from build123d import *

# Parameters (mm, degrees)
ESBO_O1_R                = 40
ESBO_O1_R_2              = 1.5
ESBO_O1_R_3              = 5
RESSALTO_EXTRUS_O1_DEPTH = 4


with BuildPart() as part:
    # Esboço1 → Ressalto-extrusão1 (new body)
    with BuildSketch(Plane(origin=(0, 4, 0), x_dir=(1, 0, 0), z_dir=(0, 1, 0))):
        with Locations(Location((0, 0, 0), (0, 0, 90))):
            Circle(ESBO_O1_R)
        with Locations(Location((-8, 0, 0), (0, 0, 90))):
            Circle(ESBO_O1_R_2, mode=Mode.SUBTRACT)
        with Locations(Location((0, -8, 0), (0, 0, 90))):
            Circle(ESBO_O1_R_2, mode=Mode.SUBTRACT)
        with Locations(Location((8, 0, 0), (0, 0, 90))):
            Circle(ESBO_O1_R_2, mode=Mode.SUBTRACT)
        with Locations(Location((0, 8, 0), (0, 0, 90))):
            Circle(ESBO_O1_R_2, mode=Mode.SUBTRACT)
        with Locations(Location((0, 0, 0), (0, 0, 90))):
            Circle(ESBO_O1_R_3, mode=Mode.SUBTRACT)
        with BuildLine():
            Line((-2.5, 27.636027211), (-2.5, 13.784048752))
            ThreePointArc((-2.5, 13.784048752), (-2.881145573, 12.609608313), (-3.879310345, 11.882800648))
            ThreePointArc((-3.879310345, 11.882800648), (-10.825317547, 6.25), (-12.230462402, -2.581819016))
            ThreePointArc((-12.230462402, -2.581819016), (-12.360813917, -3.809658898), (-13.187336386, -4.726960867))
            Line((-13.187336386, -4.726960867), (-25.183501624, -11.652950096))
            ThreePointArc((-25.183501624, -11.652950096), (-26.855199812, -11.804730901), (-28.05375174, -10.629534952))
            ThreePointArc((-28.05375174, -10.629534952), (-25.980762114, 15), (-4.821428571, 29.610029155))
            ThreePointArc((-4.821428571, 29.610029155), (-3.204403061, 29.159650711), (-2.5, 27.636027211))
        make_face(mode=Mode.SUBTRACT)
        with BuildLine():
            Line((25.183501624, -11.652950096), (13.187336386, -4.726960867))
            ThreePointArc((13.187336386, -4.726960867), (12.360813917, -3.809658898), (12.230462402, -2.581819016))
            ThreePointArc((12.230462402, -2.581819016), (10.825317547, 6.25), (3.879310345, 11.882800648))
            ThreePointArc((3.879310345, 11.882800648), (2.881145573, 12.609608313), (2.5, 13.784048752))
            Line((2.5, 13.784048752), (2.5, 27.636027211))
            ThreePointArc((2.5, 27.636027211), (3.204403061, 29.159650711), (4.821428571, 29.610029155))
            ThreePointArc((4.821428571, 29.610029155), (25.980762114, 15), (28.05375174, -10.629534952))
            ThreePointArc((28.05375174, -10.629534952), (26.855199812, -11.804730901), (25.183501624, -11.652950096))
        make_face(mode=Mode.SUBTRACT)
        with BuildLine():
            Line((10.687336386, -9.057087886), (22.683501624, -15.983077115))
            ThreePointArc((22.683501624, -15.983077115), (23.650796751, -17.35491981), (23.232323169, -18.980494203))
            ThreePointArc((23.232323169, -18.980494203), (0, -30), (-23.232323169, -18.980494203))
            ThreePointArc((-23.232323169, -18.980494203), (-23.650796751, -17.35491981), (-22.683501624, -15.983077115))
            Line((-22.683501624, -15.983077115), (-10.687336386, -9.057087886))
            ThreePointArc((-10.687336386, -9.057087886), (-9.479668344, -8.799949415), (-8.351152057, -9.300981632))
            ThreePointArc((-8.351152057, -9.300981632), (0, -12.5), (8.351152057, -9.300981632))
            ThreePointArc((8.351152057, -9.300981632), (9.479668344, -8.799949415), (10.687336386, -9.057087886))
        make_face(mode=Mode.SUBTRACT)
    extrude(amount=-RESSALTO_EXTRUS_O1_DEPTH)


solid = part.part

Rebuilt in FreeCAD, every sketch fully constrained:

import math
import FreeCAD as App
import Part
import Sketcher
Q = App.Units.Quantity

doc = App.newDocument("Part")
body = doc.addObject("PartDesign::Body", "Body")

# Sketch on XZ plane
sketch1 = doc.addObject("Sketcher::SketchObject", "Sketch")
body.addObject(sketch1)
sketch1.AttachmentSupport = (doc.XZ_Plane, [""])
sketch1.MapMode = "FlatFace"
sketch1.AttachmentOffset = App.Placement(App.Vector(0, 0, -4), App.Rotation())
sketch1.addGeometry([
    Part.Circle(App.Vector(0, 0, 0), App.Vector(0, 0, 1), 40),  # 0
    Part.ArcOfCircle(Part.Circle(App.Vector(26.2, 9.9, 0), App.Vector(0, 0, 1), 2), math.radians(21), math.radians(120)),  # 1
    Part.LineSegment(App.Vector(25.2, 11.7, 0), App.Vector(13.2, 4.7, 0)),  # 2
    Part.ArcOfCircle(Part.Circle(App.Vector(14.2, 3, 0), App.Vector(0, 0, 1), 2), math.radians(120), math.radians(192)),  # 3
    Part.ArcOfCircle(Part.Circle(App.Vector(0, 0, 0), App.Vector(0, 0, 1), 12.5), math.radians(-72), math.radians(12)),  # 4
    Part.ArcOfCircle(Part.Circle(App.Vector(4.5, -13.8, 0), App.Vector(0, 0, 1), 2), math.radians(108), math.radians(180)),  # 5
    Part.LineSegment(App.Vector(2.5, -13.8, 0), App.Vector(2.5, -27.6, 0)),  # 6
    Part.ArcOfCircle(Part.Circle(App.Vector(4.5, -27.6, 0), App.Vector(0, 0, 1), 2), math.radians(-180), math.radians(-81)),  # 7
    Part.ArcOfCircle(Part.Circle(App.Vector(0, 0, 0), App.Vector(0, 0, 1), 30), math.radians(-81), math.radians(21)),  # 8
    Part.Circle(App.Vector(8, 0, 0), App.Vector(0, 0, 1), 1.5),  # 9
    Part.ArcOfCircle(Part.Circle(App.Vector(9.7, 10.8, 0), App.Vector(0, 0, 1), 2), math.radians(-132), math.radians(-60)),  # 10
    Part.LineSegment(App.Vector(10.7, 9.1, 0), App.Vector(22.7, 16, 0)),  # 11
    Part.ArcOfCircle(Part.Circle(App.Vector(21.7, 17.7, 0), App.Vector(0, 0, 1), 2), math.radians(-60), math.radians(39)),  # 12
    Part.ArcOfCircle(Part.Circle(App.Vector(0, 0, 0), App.Vector(0, 0, 1), 30), math.radians(39), math.radians(141)),  # 13
    Part.ArcOfCircle(Part.Circle(App.Vector(-21.7, 17.7, 0), App.Vector(0, 0, 1), 2), math.radians(141), math.radians(240)),  # 14
    Part.LineSegment(App.Vector(-22.7, 16, 0), App.Vector(-10.7, 9.1, 0)),  # 15
    Part.ArcOfCircle(Part.Circle(App.Vector(-9.7, 10.8, 0), App.Vector(0, 0, 1), 2), math.radians(-120), math.radians(-48)),  # 16
    Part.ArcOfCircle(Part.Circle(App.Vector(0, 0, 0), App.Vector(0, 0, 1), 12.5), math.radians(48), math.radians(132)),  # 17
    Part.Circle(App.Vector(0, 8, 0), App.Vector(0, 0, 1), 1.5),  # 18
    Part.Circle(App.Vector(0, 0, 0), App.Vector(0, 0, 1), 5),  # 19
    Part.Circle(App.Vector(0, -8, 0), App.Vector(0, 0, 1), 1.5),  # 20
    Part.Circle(App.Vector(-8, 0, 0), App.Vector(0, 0, 1), 1.5),  # 21
    Part.ArcOfCircle(Part.Circle(App.Vector(-4.5, -27.6, 0), App.Vector(0, 0, 1), 2), math.radians(-99), math.radians(0)),  # 22
    Part.LineSegment(App.Vector(-2.5, -27.6, 0), App.Vector(-2.5, -13.8, 0)),  # 23
    Part.ArcOfCircle(Part.Circle(App.Vector(-4.5, -13.8, 0), App.Vector(0, 0, 1), 2), math.radians(0), math.radians(72)),  # 24
    Part.ArcOfCircle(Part.Circle(App.Vector(0, 0, 0), App.Vector(0, 0, 1), 12.5), math.radians(168), math.radians(252)),  # 25
    Part.ArcOfCircle(Part.Circle(App.Vector(-14.2, 3, 0), App.Vector(0, 0, 1), 2), math.radians(-12), math.radians(60)),  # 26
    Part.LineSegment(App.Vector(-13.2, 4.7, 0), App.Vector(-25.2, 11.7, 0)),  # 27
    Part.ArcOfCircle(Part.Circle(App.Vector(-26.2, 9.9, 0), App.Vector(0, 0, 1), 2), math.radians(60), math.radians(159)),  # 28
    Part.ArcOfCircle(Part.Circle(App.Vector(0, 0, 0), App.Vector(0, 0, 1), 30), math.radians(159), math.radians(261)),  # 29
], False)
sketch1.addConstraint([
    Sketcher.Constraint("Tangent", 1, 2, 2, 1),
    Sketcher.Constraint("Tangent", 2, 2, 3, 1),
    Sketcher.Constraint("Tangent", 3, 2, 4, 2),
    Sketcher.Constraint("Tangent", 4, 1, 5, 1),
    Sketcher.Constraint("Tangent", 5, 2, 6, 1),
    Sketcher.Constraint("Tangent", 6, 2, 7, 1),
    Sketcher.Constraint("Tangent", 7, 2, 8, 1),
    Sketcher.Constraint("Tangent", 8, 2, 1, 1),
    Sketcher.Constraint("Tangent", 10, 2, 11, 1),
    Sketcher.Constraint("Tangent", 11, 2, 12, 1),
    Sketcher.Constraint("Tangent", 12, 2, 13, 1),
    Sketcher.Constraint("Tangent", 13, 2, 14, 1),
    Sketcher.Constraint("Tangent", 14, 2, 15, 1),
    Sketcher.Constraint("Tangent", 15, 2, 16, 1),
    Sketcher.Constraint("Tangent", 16, 2, 17, 2),
    Sketcher.Constraint("Tangent", 17, 1, 10, 1),
    Sketcher.Constraint("Tangent", 22, 2, 23, 1),
    Sketcher.Constraint("Tangent", 23, 2, 24, 1),
    Sketcher.Constraint("Tangent", 24, 2, 25, 2),
    Sketcher.Constraint("Tangent", 25, 1, 26, 1),
    Sketcher.Constraint("Tangent", 26, 2, 27, 1),
    Sketcher.Constraint("Tangent", 27, 2, 28, 1),
    Sketcher.Constraint("Tangent", 28, 2, 29, 1),
    Sketcher.Constraint("Tangent", 29, 2, 22, 1),
    Sketcher.Constraint("Vertical", 6),
    Sketcher.Constraint("Vertical", 23),
    Sketcher.Constraint("Coincident", 0, 3, -1, 1),
    Sketcher.Constraint("Coincident", 4, 3, -1, 1),
    Sketcher.Constraint("Coincident", 8, 3, -1, 1),
    Sketcher.Constraint("Coincident", 13, 3, -1, 1),
    Sketcher.Constraint("Coincident", 17, 3, -1, 1),
    Sketcher.Constraint("Coincident", 19, 3, -1, 1),
    Sketcher.Constraint("Coincident", 25, 3, -1, 1),
    Sketcher.Constraint("Coincident", 29, 3, -1, 1),
    Sketcher.Constraint("Equal", 1, 3),
    Sketcher.Constraint("Equal", 3, 5),
    Sketcher.Constraint("Equal", 5, 7),
    Sketcher.Constraint("Equal", 7, 10),
    Sketcher.Constraint("Equal", 10, 12),
    Sketcher.Constraint("Equal", 8, 13),
    Sketcher.Constraint("Equal", 12, 14),
    Sketcher.Constraint("Equal", 14, 16),
    Sketcher.Constraint("Equal", 4, 17),
    Sketcher.Constraint("Equal", 9, 18),
    Sketcher.Constraint("Equal", 18, 20),
    Sketcher.Constraint("Equal", 20, 21),
    Sketcher.Constraint("Equal", 16, 22),
    Sketcher.Constraint("Equal", 22, 24),
    Sketcher.Constraint("Equal", 17, 25),
    Sketcher.Constraint("Equal", 24, 26),
    Sketcher.Constraint("Equal", 26, 28),
    Sketcher.Constraint("Equal", 13, 29),
    Sketcher.Constraint("Symmetric", 18, 3, 20, 3, -1, 1),
    Sketcher.Constraint("Symmetric", 9, 3, 21, 3, -1, 1),
    Sketcher.Constraint("Symmetric", 11, 2, 14, 2, -2),
    Sketcher.Constraint("Symmetric", 2, 2, 26, 2, -2),
    Sketcher.Constraint("PointOnObject", 9, 3, -1),
    Sketcher.Constraint("PointOnObject", 18, 3, -2),
    Sketcher.Constraint("Parallel", 2, 11),
    Sketcher.Constraint("Horizontal", 7, 3, 22, 3),
    Sketcher.Constraint("Equal", 2, 11),
    Sketcher.Constraint("Diameter", 0, 80.0),
    Sketcher.Constraint("Diameter", 9, 3.0),
    Sketcher.Constraint("Diameter", 19, 10.0),
    Sketcher.Constraint("Radius", 1, 2.0),
    Sketcher.Constraint("Radius", 8, 30.0),
    Sketcher.Constraint("Radius", 4, 12.5),
    Sketcher.Constraint("Angle", 2, Q("-150 deg")),
    Sketcher.Constraint("DistanceX", -1, 1, 9, 3, 8.0),
    Sketcher.Constraint("DistanceY", -1, 1, 18, 3, 8.0),
    Sketcher.Constraint("DistanceX", 22, 3, 7, 3, 9.0),
    Sketcher.Constraint("DistanceX", 10, 3, 3, 3, 4.5),
])
pad1 = doc.addObject("PartDesign::Pad", "Pad")
body.addObject(pad1)
pad1.Profile = sketch1
pad1.Length = 4

doc.recompute()
